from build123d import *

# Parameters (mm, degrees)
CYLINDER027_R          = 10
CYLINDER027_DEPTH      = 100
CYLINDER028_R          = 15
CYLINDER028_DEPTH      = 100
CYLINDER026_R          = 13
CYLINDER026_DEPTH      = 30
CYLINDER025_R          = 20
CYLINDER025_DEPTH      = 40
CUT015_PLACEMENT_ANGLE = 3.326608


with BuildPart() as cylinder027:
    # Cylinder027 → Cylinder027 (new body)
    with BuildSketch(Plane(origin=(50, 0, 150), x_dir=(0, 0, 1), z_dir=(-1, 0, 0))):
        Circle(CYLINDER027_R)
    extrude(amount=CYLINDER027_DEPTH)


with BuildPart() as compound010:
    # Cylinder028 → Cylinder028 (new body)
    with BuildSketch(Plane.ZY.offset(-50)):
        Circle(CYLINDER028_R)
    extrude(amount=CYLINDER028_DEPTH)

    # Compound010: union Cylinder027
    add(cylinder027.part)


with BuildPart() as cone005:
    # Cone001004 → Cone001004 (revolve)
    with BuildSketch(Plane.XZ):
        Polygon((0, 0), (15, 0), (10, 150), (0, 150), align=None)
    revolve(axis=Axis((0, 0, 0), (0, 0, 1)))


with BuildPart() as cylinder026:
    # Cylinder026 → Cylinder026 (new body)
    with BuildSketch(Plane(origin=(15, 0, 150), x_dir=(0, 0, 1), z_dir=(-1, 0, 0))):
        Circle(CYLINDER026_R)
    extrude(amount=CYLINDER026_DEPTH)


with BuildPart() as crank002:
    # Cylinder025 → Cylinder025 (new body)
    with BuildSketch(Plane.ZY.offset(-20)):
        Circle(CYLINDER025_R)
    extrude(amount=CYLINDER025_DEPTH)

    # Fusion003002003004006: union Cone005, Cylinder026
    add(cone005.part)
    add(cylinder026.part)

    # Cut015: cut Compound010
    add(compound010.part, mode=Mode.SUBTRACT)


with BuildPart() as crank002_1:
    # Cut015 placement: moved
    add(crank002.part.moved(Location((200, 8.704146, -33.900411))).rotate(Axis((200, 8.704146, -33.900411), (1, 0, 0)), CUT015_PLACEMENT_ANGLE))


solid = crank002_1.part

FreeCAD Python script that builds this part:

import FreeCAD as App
import Part
import Sketcher

V = App.Vector


def add_polygon(sketch, points):
    """Adds a closed chain of lines whose ends are joined by coincident constraints."""
    first, n = sketch.GeometryCount, len(points)
    for a, b in zip(points, points[1:] + points[:1]):
        sketch.addGeometry(Part.LineSegment(App.Vector(*a, 0), App.Vector(*b, 0)), False)
    for i in range(n):
        sketch.addConstraint(Sketcher.Constraint("Coincident", first + i, 2, first + (i + 1) % n, 1))

doc = App.newDocument("Part")
params = doc.addObject("Spreadsheet::Sheet", "Params")
for row, (alias, value) in enumerate([
    ("sketch1_diameter", "20 mm"),
    ("pad1_length", "100 mm"),
    ("sketch2_diameter", "30 mm"),
    ("pad2_length", "100 mm"),
    ("sketch3_width", "15 mm"),
    ("sketch3_width2", "10 mm"),
    ("sketch3_height", "150 mm"),
    ("revolution_angle", "360 deg"),
    ("sketch4_diameter", "26 mm"),
    ("pad3_length", "30 mm"),
    ("sketch5_diameter", "40 mm"),
    ("pad4_length", "40 mm"),
], start=1):
    params.set(f"A{row}", alias)
    params.set(f"B{row}", "=" + value)
    params.setAlias(f"B{row}", alias)

body = doc.addObject("PartDesign::Body", "Body")

# Sketch on YZ plane
sketch1 = body.newObject("Sketcher::SketchObject", "Sketch")
sketch1.AttachmentSupport = (doc.getObject("YZ_Plane"), [""])
sketch1.MapMode = "FlatFace"
sketch1.AttachmentOffset = App.Placement(V(0, 0, 50), App.Rotation())
sketch1.addGeometry(Part.Circle(V(0, 150, 0), V(0, 0, 1), 10), False)
sketch1.addConstraint([
    Sketcher.Constraint("PointOnObject", 0, 3, -2),
    Sketcher.Constraint("Diameter", 0, 20.0),
    Sketcher.Constraint("DistanceY", -1, 1, 0, 3, 150.0),
])
sketch1.setExpression("Constraints[1]", "Params.sketch1_diameter")
pad1 = body.newObject("PartDesign::Pad", "Pad")
pad1.Profile = sketch1
pad1.setExpression("Length", "Params.pad1_length")
pad1.Reversed = True
body2 = doc.addObject("PartDesign::Body", "Body001")
body2.AllowCompound = True

# Sketch on YZ plane
sketch2 = body2.newObject("Sketcher::SketchObject", "Sketch001")
sketch2.AttachmentSupport = (doc.getObject("YZ_Plane001"), [""])
sketch2.MapMode = "FlatFace"
sketch2.AttachmentOffset = App.Placement(V(0, 0, 50), App.Rotation())
sketch2.addGeometry(Part.Circle(V(0, 0, 0), V(0, 0, 1), 15), False)
sketch2.addConstraint([
    Sketcher.Constraint("Coincident", 0, 3, -1, 1),
    Sketcher.Constraint("Diameter", 0, 30.0),
])
sketch2.setExpression("Constraints[1]", "Params.sketch2_diameter")
pad2 = body2.newObject("PartDesign::Pad", "Pad001")
pad2.Profile = sketch2
pad2.setExpression("Length", "Params.pad2_length")
pad2.Reversed = True
doc.recompute()

boolean = body2.newObject("PartDesign::Boolean", "Boolean")
boolean.Type = "Fuse"
boolean.addObjects([body])
body3 = doc.addObject("PartDesign::Body", "Body002")

# Sketch on XZ plane
sketch3 = body3.newObject("Sketcher::SketchObject", "Sketch002")
sketch3.AttachmentSupport = (doc.getObject("XZ_Plane002"), [""])
sketch3.MapMode = "FlatFace"
add_polygon(sketch3, [(0, 0), (15, 0), (10, 150), (0, 150)])  # lines 0-3
sketch3.addConstraint([
    Sketcher.Constraint("Horizontal", 0),
    Sketcher.Constraint("Horizontal", 2),
    Sketcher.Constraint("Vertical", 3),
    Sketcher.Constraint("Coincident", 3, 2, -1, 1),
    Sketcher.Constraint("DistanceX", 0, 1, 0, 2, 15.0),
    Sketcher.Constraint("DistanceX", 2, 2, 2, 1, 10.0),
    Sketcher.Constraint("DistanceY", 3, 2, 3, 1, 150.0),
])
sketch3.setExpression("Constraints[8]", "Params.sketch3_width")
sketch3.setExpression("Constraints[9]", "Params.sketch3_width2")
sketch3.setExpression("Constraints[10]", "Params.sketch3_height")
revolution = body3.newObject("PartDesign::Revolution", "Revolution")
revolution.Profile = sketch3
revolution.ReferenceAxis = (sketch3, ["V_Axis"])
revolution.setExpression("Angle", "Params.revolution_angle")
body4 = doc.addObject("PartDesign::Body", "Body003")

# Sketch on YZ plane
sketch4 = body4.newObject("Sketcher::SketchObject", "Sketch003")
sketch4.AttachmentSupport = (doc.getObject("YZ_Plane003"), [""])
sketch4.MapMode = "FlatFace"
sketch4.AttachmentOffset = App.Placement(V(0, 0, 15), App.Rotation())
sketch4.addGeometry(Part.Circle(V(0, 150, 0), V(0, 0, 1), 13), False)
sketch4.addConstraint([
    Sketcher.Constraint("PointOnObject", 0, 3, -2),
    Sketcher.Constraint("Diameter", 0, 26.0),
    Sketcher.Constraint("DistanceY", -1, 1, 0, 3, 150.0),
])
sketch4.setExpression("Constraints[1]", "Params.sketch4_diameter")
pad3 = body4.newObject("PartDesign::Pad", "Pad002")
pad3.Profile = sketch4
pad3.setExpression("Length", "Params.pad3_length")
pad3.Reversed = True
body5 = doc.addObject("PartDesign::Body", "Body004")

# Sketch on YZ plane
sketch5 = body5.newObject("Sketcher::SketchObject", "Sketch004")
sketch5.AttachmentSupport = (doc.getObject("YZ_Plane004"), [""])
sketch5.MapMode = "FlatFace"
sketch5.AttachmentOffset = App.Placement(V(0, 0, 20), App.Rotation())
sketch5.addGeometry(Part.Circle(V(0, 0, 0), V(0, 0, 1), 20), False)
sketch5.addConstraint([
    Sketcher.Constraint("Coincident", 0, 3, -1, 1),
    Sketcher.Constraint("Diameter", 0, 40.0),
])
sketch5.setExpression("Constraints[1]", "Params.sketch5_diameter")
pad4 = body5.newObject("PartDesign::Pad", "Pad003")
pad4.Profile = sketch5
pad4.setExpression("Length", "Params.pad4_length")
pad4.Reversed = True
doc.recompute()

boolean2 = body5.newObject("PartDesign::Boolean", "Boolean001")
boolean2.Type = "Fuse"
boolean2.addObjects([body3])
doc.recompute()

boolean3 = body5.newObject("PartDesign::Boolean", "Boolean002")
boolean3.Type = "Fuse"
boolean3.addObjects([body4])
doc.recompute()

boolean4 = body5.newObject("PartDesign::Boolean", "Boolean003")
boolean4.Type = "Cut"
boolean4.addObjects([body2])
body6 = doc.addObject("PartDesign::Body", "Body005")
doc.recompute()

body5.Placement = App.Placement(V(200, 8.704146, -33.900411), App.Rotation(V(1, 0, 0), 3.326608))
boolean5 = body6.newObject("PartDesign::Boolean", "Boolean004")
boolean5.Type = "Fuse"
boolean5.addObjects([body5])

doc.recompute()
